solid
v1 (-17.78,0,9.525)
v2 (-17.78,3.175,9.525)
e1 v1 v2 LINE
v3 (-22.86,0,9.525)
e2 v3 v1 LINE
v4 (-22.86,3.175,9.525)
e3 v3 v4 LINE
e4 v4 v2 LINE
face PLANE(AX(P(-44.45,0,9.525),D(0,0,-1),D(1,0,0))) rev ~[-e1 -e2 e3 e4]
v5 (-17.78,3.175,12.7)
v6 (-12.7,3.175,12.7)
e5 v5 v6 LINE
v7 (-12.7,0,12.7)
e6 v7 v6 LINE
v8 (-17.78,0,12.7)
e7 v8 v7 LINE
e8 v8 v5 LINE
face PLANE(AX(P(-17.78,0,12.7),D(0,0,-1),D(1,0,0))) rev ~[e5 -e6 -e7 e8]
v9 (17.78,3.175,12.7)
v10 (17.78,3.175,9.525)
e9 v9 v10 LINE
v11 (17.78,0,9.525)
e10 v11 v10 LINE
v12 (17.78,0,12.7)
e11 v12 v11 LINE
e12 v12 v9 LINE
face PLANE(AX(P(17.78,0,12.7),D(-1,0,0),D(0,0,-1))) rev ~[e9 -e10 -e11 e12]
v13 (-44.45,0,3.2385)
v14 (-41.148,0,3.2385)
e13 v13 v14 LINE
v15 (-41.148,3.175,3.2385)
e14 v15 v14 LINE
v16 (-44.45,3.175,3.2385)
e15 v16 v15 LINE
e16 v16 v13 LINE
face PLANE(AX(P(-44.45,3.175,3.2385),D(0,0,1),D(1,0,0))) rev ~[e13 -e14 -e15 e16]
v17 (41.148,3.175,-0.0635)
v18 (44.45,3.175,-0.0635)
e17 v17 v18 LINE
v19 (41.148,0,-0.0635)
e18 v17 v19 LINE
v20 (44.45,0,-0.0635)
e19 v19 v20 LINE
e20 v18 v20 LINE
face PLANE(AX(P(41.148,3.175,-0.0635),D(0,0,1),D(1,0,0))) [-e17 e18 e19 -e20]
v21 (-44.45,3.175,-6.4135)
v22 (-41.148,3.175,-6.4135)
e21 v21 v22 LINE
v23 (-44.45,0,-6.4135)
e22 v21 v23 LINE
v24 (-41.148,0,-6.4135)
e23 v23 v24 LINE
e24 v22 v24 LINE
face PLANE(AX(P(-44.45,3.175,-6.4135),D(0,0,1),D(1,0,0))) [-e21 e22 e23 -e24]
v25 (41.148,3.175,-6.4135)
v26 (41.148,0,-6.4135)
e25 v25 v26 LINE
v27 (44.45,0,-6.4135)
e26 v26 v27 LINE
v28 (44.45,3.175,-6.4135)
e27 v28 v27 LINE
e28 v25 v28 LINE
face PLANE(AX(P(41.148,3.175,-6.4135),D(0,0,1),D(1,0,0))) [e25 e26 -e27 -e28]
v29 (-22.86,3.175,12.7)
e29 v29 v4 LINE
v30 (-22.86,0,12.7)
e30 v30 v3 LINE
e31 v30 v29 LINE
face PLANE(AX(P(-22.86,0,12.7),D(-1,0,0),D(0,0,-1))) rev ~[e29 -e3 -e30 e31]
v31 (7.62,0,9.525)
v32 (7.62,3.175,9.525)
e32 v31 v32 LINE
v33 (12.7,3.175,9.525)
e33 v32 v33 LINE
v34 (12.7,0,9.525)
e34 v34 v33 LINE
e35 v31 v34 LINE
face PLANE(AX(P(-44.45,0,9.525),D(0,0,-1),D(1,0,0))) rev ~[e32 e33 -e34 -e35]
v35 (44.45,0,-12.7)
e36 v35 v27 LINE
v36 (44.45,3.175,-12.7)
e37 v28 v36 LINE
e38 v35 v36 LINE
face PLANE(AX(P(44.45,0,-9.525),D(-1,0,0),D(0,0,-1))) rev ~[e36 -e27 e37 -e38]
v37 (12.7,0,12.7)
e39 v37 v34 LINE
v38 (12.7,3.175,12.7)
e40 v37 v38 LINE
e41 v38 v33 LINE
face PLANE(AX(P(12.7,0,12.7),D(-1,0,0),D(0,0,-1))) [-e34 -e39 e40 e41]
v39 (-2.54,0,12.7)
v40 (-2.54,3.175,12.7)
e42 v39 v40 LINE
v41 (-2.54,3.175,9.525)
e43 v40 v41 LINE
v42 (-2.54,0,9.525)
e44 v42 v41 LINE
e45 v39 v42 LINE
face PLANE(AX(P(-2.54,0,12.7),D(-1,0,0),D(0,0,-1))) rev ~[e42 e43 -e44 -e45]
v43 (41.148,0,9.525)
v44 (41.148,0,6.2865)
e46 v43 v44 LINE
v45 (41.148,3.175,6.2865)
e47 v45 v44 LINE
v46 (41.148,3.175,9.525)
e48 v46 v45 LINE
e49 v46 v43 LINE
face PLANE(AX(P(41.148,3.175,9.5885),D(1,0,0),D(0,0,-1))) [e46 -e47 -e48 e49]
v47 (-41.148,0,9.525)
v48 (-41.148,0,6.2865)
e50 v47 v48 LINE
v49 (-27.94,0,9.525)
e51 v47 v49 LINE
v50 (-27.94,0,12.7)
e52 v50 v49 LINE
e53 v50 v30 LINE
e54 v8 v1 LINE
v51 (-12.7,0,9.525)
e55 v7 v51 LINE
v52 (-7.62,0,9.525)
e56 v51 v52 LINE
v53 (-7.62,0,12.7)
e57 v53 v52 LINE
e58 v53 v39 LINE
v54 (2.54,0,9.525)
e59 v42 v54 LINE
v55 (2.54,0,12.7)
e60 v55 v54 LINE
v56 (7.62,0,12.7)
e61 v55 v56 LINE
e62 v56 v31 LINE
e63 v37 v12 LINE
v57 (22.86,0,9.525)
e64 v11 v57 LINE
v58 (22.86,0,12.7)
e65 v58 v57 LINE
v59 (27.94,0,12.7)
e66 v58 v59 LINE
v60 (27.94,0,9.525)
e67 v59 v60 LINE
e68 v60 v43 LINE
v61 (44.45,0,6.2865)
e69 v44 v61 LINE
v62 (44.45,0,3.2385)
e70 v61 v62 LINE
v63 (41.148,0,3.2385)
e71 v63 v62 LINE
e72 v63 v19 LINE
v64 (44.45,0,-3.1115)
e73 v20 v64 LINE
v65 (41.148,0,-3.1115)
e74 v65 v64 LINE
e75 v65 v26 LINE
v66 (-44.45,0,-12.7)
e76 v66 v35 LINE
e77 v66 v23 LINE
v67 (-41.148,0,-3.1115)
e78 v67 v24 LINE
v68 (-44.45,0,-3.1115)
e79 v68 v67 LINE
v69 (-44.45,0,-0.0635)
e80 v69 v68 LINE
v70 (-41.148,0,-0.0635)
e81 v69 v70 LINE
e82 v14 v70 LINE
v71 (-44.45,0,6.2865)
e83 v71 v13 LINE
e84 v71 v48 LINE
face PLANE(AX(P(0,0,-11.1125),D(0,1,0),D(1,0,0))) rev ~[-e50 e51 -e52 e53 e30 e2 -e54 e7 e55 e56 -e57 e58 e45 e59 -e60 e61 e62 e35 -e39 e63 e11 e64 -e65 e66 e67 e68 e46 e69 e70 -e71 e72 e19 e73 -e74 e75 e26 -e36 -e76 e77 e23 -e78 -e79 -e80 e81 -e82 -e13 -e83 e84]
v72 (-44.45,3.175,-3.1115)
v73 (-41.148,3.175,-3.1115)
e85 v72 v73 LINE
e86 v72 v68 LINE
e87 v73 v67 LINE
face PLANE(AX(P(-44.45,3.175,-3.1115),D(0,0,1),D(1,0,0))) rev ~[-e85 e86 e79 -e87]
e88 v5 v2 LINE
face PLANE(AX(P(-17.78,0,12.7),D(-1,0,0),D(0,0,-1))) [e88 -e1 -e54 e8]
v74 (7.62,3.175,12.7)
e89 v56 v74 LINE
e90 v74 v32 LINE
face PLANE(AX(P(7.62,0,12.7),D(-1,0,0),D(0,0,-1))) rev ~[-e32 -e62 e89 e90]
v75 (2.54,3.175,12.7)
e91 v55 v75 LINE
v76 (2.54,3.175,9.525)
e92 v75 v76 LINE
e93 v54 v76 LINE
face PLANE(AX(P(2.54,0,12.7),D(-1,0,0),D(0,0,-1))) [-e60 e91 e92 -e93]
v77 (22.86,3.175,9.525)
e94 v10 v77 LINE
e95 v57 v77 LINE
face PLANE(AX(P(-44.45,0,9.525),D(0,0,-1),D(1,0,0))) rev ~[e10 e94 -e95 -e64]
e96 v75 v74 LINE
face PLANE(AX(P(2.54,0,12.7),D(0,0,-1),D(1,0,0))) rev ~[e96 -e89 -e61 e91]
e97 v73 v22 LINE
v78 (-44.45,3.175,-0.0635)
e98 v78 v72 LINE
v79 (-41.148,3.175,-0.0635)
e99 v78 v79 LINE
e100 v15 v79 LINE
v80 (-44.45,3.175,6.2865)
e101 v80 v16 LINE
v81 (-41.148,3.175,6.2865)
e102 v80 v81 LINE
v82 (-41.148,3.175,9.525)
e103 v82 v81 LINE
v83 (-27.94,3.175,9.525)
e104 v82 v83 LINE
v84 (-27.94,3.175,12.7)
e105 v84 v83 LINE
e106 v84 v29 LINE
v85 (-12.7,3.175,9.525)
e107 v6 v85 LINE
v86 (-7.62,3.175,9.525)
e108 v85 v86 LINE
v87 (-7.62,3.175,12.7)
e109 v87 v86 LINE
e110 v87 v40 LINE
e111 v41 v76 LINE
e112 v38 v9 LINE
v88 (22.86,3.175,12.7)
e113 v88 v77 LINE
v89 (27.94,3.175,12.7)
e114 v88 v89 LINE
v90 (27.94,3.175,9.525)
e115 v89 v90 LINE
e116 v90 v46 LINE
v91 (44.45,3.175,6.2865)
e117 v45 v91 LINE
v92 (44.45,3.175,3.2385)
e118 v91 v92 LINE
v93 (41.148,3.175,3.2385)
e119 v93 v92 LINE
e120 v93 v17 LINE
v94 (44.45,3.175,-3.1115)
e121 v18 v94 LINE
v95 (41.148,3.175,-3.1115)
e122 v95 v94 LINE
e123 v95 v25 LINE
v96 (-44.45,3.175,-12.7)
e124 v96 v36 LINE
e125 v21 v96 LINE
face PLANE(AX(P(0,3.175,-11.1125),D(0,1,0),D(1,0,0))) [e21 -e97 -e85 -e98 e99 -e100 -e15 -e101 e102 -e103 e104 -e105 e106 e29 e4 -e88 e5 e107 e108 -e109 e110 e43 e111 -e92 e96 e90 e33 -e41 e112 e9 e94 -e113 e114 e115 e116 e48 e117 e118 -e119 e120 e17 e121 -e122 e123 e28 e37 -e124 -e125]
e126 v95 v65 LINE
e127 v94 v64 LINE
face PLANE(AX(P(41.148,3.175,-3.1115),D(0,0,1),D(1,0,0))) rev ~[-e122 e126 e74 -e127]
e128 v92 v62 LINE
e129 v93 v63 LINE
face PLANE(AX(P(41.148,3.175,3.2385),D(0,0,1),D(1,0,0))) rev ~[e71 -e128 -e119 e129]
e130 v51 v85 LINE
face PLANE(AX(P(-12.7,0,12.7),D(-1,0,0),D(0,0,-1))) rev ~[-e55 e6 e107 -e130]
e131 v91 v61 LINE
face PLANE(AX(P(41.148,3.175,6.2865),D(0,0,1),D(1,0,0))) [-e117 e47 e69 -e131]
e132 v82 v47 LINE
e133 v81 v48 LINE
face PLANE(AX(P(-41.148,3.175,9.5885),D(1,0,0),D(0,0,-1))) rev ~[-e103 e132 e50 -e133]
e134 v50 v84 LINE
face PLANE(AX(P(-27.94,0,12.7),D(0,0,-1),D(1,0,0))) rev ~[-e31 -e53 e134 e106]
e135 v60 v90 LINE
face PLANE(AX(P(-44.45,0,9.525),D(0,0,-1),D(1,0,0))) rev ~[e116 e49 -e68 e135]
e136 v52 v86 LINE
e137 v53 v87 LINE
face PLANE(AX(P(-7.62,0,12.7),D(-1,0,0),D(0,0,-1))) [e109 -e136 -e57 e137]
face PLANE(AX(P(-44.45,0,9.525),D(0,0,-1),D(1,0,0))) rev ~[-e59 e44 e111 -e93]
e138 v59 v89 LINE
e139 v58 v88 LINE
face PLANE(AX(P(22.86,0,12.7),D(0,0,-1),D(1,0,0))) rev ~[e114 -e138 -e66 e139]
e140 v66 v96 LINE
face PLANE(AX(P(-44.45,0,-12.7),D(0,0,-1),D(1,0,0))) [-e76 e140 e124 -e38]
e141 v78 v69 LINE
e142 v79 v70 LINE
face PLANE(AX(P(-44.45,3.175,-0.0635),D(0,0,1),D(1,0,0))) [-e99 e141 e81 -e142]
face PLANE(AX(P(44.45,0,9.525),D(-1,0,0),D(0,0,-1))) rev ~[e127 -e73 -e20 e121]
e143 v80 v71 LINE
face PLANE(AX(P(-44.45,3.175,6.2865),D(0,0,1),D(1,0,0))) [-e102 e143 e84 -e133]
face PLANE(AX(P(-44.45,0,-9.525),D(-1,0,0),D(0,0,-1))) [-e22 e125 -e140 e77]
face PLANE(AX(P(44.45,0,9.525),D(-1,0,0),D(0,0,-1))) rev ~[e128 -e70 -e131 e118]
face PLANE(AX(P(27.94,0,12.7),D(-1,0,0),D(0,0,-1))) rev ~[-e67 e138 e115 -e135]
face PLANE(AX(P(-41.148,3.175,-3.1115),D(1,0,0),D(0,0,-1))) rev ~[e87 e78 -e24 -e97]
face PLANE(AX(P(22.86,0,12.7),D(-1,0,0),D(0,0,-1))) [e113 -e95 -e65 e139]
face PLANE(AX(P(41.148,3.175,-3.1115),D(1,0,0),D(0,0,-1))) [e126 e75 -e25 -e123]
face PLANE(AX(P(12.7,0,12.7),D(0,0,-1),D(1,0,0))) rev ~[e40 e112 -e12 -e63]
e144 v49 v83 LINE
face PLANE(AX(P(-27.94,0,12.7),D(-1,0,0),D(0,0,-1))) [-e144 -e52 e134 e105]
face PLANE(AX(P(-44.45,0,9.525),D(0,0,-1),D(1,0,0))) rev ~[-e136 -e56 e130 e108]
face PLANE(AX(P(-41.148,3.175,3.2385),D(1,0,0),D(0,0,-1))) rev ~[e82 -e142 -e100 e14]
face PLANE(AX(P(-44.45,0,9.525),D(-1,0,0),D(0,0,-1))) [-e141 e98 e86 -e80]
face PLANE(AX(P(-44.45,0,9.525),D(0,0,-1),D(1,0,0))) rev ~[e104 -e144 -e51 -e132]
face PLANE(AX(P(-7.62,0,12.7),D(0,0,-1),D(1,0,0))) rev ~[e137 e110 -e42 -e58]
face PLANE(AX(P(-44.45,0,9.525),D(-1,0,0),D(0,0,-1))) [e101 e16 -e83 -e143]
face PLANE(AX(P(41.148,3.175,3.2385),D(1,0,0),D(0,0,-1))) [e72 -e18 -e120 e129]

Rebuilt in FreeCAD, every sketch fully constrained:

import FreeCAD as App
import Part
import Sketcher

V = App.Vector
Q = App.Units.Quantity

doc = App.newDocument("Part")
params = doc.addObject("Spreadsheet::Sheet", "Params")
for row, (alias, value) in enumerate([
    ("sketch1_width", "3.5 in"),
    ("sketch1_height", "0.75 in"),
    ("pad1_length", "0.125 in"),
    ("sketch2_width", "0.13 in"),
    ("sketch3_width", "0.2 in"),
    ("sketch3_width2", "3.5 in"),
    ("sketch3_height", "0.125 in"),
    ("pad2_length", "0.125 in"),
], start=1):
    params.set(f"A{row}", alias)
    params.set(f"B{row}", "=" + value)
    params.setAlias(f"B{row}", alias)

body = doc.addObject("PartDesign::Body", "Body")

# Sketch on XZ plane
sketch1 = body.newObject("Sketcher::SketchObject", "Sketch")
sketch1.AttachmentSupport = (doc.getObject("XZ_Plane"), [""])
sketch1.MapMode = "FlatFace"
sketch1.addGeometry([
    Part.LineSegment(V(-44, -10, 0), V(-44, 10, 0)),
    Part.LineSegment(V(-44, 10, 0), V(44, 10, 0)),
    Part.LineSegment(V(44, 10, 0), V(44, -10, 0)),
    Part.LineSegment(V(44, -10, 0), V(-44, -10, 0)),
], False)
sketch1.addConstraint([
    Sketcher.Constraint("Coincident", 0, 2, 1, 1),
    Sketcher.Constraint("Coincident", 1, 2, 2, 1),
    Sketcher.Constraint("Coincident", 2, 2, 3, 1),
    Sketcher.Constraint("Coincident", 3, 2, 0, 1),
    Sketcher.Constraint("Vertical", 0),
    Sketcher.Constraint("Horizontal", 1),
    Sketcher.Constraint("Vertical", 2),
    Sketcher.Constraint("Horizontal", 3),
    Sketcher.Constraint("Symmetric", 0, 2, 2, 2, -1, 1),
    Sketcher.Constraint("DistanceX", 1, 1, 1, 2, Q("3.5 in")),
    Sketcher.Constraint("DistanceY", 0, 1, 0, 2, Q("0.75 in")),
])
sketch1.setExpression("Constraints[9]", "Params.sketch1_width")
sketch1.setExpression("Constraints[10]", "Params.sketch1_height")
pad1 = body.newObject("PartDesign::Pad", "Pad")
pad1.Profile = sketch1
pad1.setExpression("Length", "Params.pad1_length")
pad1.Reversed = True

# Sketch on XZ plane
sketch2 = body.newObject("Sketcher::SketchObject", "Sketch001")
sketch2.AttachmentSupport = (doc.getObject("XZ_Plane"), [""])
sketch2.MapMode = "FlatFace"
sketch2.AttachmentOffset = App.Placement(V(0, 0, -0.125 * 25.4), App.Rotation())
sketch2.addGeometry([
    Part.LineSegment(V(-44.5, -6.4, 0), V(-44.5, -3.1, 0)),  # 0
    Part.LineSegment(V(-44.5, -3.1, 0), V(-41.1, -3.1, 0)),  # 1
    Part.LineSegment(V(-41.1, -3.1, 0), V(-41.1, -6.4, 0)),  # 2
    Part.LineSegment(V(-41.1, -6.4, 0), V(-44.5, -6.4, 0)),  # 3
    Part.LineSegment(V(-44.5, -0.1, 0), V(-44.5, 3.2, 0)),  # 4
    Part.LineSegment(V(-44.5, 3.2, 0), V(-41.1, 3.2, 0)),  # 5
    Part.LineSegment(V(-41.1, 3.2, 0), V(-41.1, -0.1, 0)),  # 6
    Part.LineSegment(V(-41.1, -0.1, 0), V(-44.5, -0.1, 0)),  # 7
    Part.LineSegment(V(-44.5, 6.3, 0), V(-44.5, 9.6, 0)),  # 8
    Part.LineSegment(V(-44.5, 9.6, 0), V(-41.1, 9.6, 0)),  # 9
    Part.LineSegment(V(-41.1, 9.6, 0), V(-41.1, 6.3, 0)),  # 10
    Part.LineSegment(V(-41.1, 6.3, 0), V(-44.5, 6.3, 0)),  # 11
    Part.LineSegment(V(41.1, 6.3, 0), V(41.1, 9.6, 0)),  # 12
    Part.LineSegment(V(41.1, 9.6, 0), V(44.5, 9.6, 0)),  # 13
    Part.LineSegment(V(44.5, 9.6, 0), V(44.5, 6.3, 0)),  # 14
    Part.LineSegment(V(44.5, 6.3, 0), V(41.1, 6.3, 0)),  # 15
    Part.LineSegment(V(41.1, -0.1, 0), V(41.1, 3.2, 0)),  # 16
    Part.LineSegment(V(41.1, 3.2, 0), V(44.5, 3.2, 0)),  # 17
    Part.LineSegment(V(44.5, 3.2, 0), V(44.5, -0.1, 0)),  # 18
    Part.LineSegment(V(44.5, -0.1, 0), V(41.1, -0.1, 0)),  # 19
    Part.LineSegment(V(41.1, -6.4, 0), V(41.1, -3.1, 0)),  # 20
    Part.LineSegment(V(41.1, -3.1, 0), V(44.5, -3.1, 0)),  # 21
    Part.LineSegment(V(44.5, -3.1, 0), V(44.5, -6.4, 0)),  # 22
    Part.LineSegment(V(44.5, -6.4, 0), V(41.1, -6.4, 0)),  # 23
], False)
sketch2.addConstraint([
    Sketcher.Constraint("Coincident", 0, 2, 1, 1),
    Sketcher.Constraint("Coincident", 1, 2, 2, 1),
    Sketcher.Constraint("Coincident", 2, 2, 3, 1),
    Sketcher.Constraint("Coincident", 3, 2, 0, 1),
    Sketcher.Constraint("Coincident", 4, 2, 5, 1),
    Sketcher.Constraint("Coincident", 5, 2, 6, 1),
    Sketcher.Constraint("Coincident", 6, 2, 7, 1),
    Sketcher.Constraint("Coincident", 7, 2, 4, 1),
    Sketcher.Constraint("Coincident", 8, 2, 9, 1),
    Sketcher.Constraint("Coincident", 9, 2, 10, 1),
    Sketcher.Constraint("Coincident", 10, 2, 11, 1),
    Sketcher.Constraint("Coincident", 11, 2, 8, 1),
    Sketcher.Constraint("Coincident", 12, 2, 13, 1),
    Sketcher.Constraint("Coincident", 13, 2, 14, 1),
    Sketcher.Constraint("Coincident", 14, 2, 15, 1),
    Sketcher.Constraint("Coincident", 15, 2, 12, 1),
    Sketcher.Constraint("Coincident", 16, 2, 17, 1),
    Sketcher.Constraint("Coincident", 17, 2, 18, 1),
    Sketcher.Constraint("Coincident", 18, 2, 19, 1),
    Sketcher.Constraint("Coincident", 19, 2, 16, 1),
    Sketcher.Constraint("Coincident", 20, 2, 21, 1),
    Sketcher.Constraint("Coincident", 21, 2, 22, 1),
    Sketcher.Constraint("Coincident", 22, 2, 23, 1),
    Sketcher.Constraint("Coincident", 23, 2, 20, 1),
    Sketcher.Constraint("Vertical", 0),
    Sketcher.Constraint("Horizontal", 1),
    Sketcher.Constraint("Vertical", 2),
    Sketcher.Constraint("Horizontal", 3),
    Sketcher.Constraint("Vertical", 4),
    Sketcher.Constraint("Horizontal", 5),
    Sketcher.Constraint("Vertical", 6),
    Sketcher.Constraint("Horizontal", 7),
    Sketcher.Constraint("Vertical", 8),
    Sketcher.Constraint("Horizontal", 9),
    Sketcher.Constraint("Vertical", 10),
    Sketcher.Constraint("Horizontal", 11),
    Sketcher.Constraint("Vertical", 12),
    Sketcher.Constraint("Horizontal", 13),
    Sketcher.Constraint("Vertical", 14),
    Sketcher.Constraint("Horizontal", 15),
    Sketcher.Constraint("Vertical", 16),
    Sketcher.Constraint("Horizontal", 17),
    Sketcher.Constraint("Vertical", 18),
    Sketcher.Constraint("Horizontal", 19),
    Sketcher.Constraint("Vertical", 20),
    Sketcher.Constraint("Horizontal", 21),
    Sketcher.Constraint("Vertical", 22),
    Sketcher.Constraint("Horizontal", 23),
    Sketcher.Constraint("Symmetric", 9, 2, 12, 2, -2),
    Sketcher.Constraint("Symmetric", 11, 2, 14, 2, -2),
    Sketcher.Constraint("Symmetric", 5, 2, 16, 2, -2),
    Sketcher.Constraint("Symmetric", 7, 2, 18, 2, -2),
    Sketcher.Constraint("Symmetric", 1, 2, 20, 2, -2),
    Sketcher.Constraint("Symmetric", 3, 2, 22, 2, -2),
    Sketcher.Constraint("Vertical", 3, 2, 4, 2),
    Sketcher.Constraint("Vertical", 2, 2, 5, 2),
    Sketcher.Constraint("Vertical", 7, 2, 8, 2),
    Sketcher.Constraint("Vertical", 6, 2, 9, 2),
    Sketcher.Constraint("Equal", 23, 0),
    Sketcher.Constraint("Equal", 2, 4),
    Sketcher.Constraint("Equal", 6, 8),
    Sketcher.Constraint("DistanceX", 1, 1, 1, 2, Q("0.13 in")),
    Sketcher.Constraint("DistanceY", 0, 2, 8, 2, Q("0.5 in")),
    Sketcher.Constraint("DistanceX", 0, 2, -1, 1, Q("1.75 in")),
    Sketcher.Constraint("DistanceY", 0, 2, 4, 2, Q("0.25 in")),
    Sketcher.Constraint("DistanceY", 0, 2, -1, 1, Q("0.1225 in")),
])
sketch2.setExpression("Constraints[61]", "Params.sketch2_width")
pocket1 = body.newObject("PartDesign::Pocket", "Pocket")
pocket1.Profile = sketch2
pocket1.Type = "ThroughAll"
pocket1.Reversed = True

# Sketch on XZ plane
sketch3 = body.newObject("Sketcher::SketchObject", "Sketch002")
sketch3.AttachmentSupport = (doc.getObject("XZ_Plane"), [""])
sketch3.MapMode = "FlatFace"
sketch3.addGeometry([
    Part.LineSegment(V(-27.9, 9.5, 0), V(-27.9, 12.7, 0)),  # 0
    Part.LineSegment(V(-27.9, 12.7, 0), V(-22.9, 12.7, 0)),  # 1
    Part.LineSegment(V(-22.9, 12.7, 0), V(-22.9, 9.5, 0)),  # 2
    Part.LineSegment(V(-22.9, 9.5, 0), V(-27.9, 9.5, 0)),  # 3
    Part.LineSegment(V(-17.8, 9.5, 0), V(-17.8, 12.7, 0)),  # 4
    Part.LineSegment(V(-17.8, 12.7, 0), V(-12.7, 12.7, 0)),  # 5
    Part.LineSegment(V(-12.7, 12.7, 0), V(-12.7, 9.5, 0)),  # 6
    Part.LineSegment(V(-12.7, 9.5, 0), V(-17.8, 9.5, 0)),  # 7
    Part.LineSegment(V(-44.5, -12.7, 0), V(-44.5, -9.5, 0)),  # 8
    Part.LineSegment(V(-44.5, -9.5, 0), V(44.5, -9.5, 0)),  # 9
    Part.LineSegment(V(44.5, -9.5, 0), V(44.5, -12.7, 0)),  # 10
    Part.LineSegment(V(44.5, -12.7, 0), V(-44.5, -12.7, 0)),  # 11
    Part.LineSegment(V(-7.6, 9.5, 0), V(-7.6, 12.7, 0)),  # 12
    Part.LineSegment(V(-7.6, 12.7, 0), V(-2.5, 12.7, 0)),  # 13
    Part.LineSegment(V(-2.5, 12.7, 0), V(-2.5, 9.5, 0)),  # 14
    Part.LineSegment(V(-2.5, 9.5, 0), V(-7.6, 9.5, 0)),  # 15
    Part.LineSegment(V(2.5, 9.5, 0), V(2.5, 12.7, 0)),  # 16
    Part.LineSegment(V(2.5, 12.7, 0), V(7.6, 12.7, 0)),  # 17
    Part.LineSegment(V(7.6, 12.7, 0), V(7.6, 9.5, 0)),  # 18
    Part.LineSegment(V(7.6, 9.5, 0), V(2.5, 9.5, 0)),  # 19
    Part.LineSegment(V(12.7, 9.5, 0), V(12.7, 12.7, 0)),  # 20
    Part.LineSegment(V(12.7, 12.7, 0), V(17.8, 12.7, 0)),  # 21
    Part.LineSegment(V(17.8, 12.7, 0), V(17.8, 9.5, 0)),  # 22
    Part.LineSegment(V(17.8, 9.5, 0), V(12.7, 9.5, 0)),  # 23
    Part.LineSegment(V(22.9, 9.5, 0), V(22.9, 12.7, 0)),  # 24
    Part.LineSegment(V(22.9, 12.7, 0), V(27.9, 12.7, 0)),  # 25
    Part.LineSegment(V(27.9, 12.7, 0), V(27.9, 9.5, 0)),  # 26
    Part.LineSegment(V(27.9, 9.5, 0), V(22.9, 9.5, 0)),  # 27
], False)
sketch3.addConstraint([
    Sketcher.Constraint("Coincident", 0, 2, 1, 1),
    Sketcher.Constraint("Coincident", 1, 2, 2, 1),
    Sketcher.Constraint("Coincident", 2, 2, 3, 1),
    Sketcher.Constraint("Coincident", 3, 2, 0, 1),
    Sketcher.Constraint("Coincident", 4, 2, 5, 1),
    Sketcher.Constraint("Coincident", 5, 2, 6, 1),
    Sketcher.Constraint("Coincident", 6, 2, 7, 1),
    Sketcher.Constraint("Coincident", 7, 2, 4, 1),
    Sketcher.Constraint("Coincident", 8, 2, 9, 1),
    Sketcher.Constraint("Coincident", 9, 2, 10, 1),
    Sketcher.Constraint("Coincident", 10, 2, 11, 1),
    Sketcher.Constraint("Coincident", 11, 2, 8, 1),
    Sketcher.Constraint("Coincident", 12, 2, 13, 1),
    Sketcher.Constraint("Coincident", 13, 2, 14, 1),
    Sketcher.Constraint("Coincident", 14, 2, 15, 1),
    Sketcher.Constraint("Coincident", 15, 2, 12, 1),
    Sketcher.Constraint("Coincident", 16, 2, 17, 1),
    Sketcher.Constraint("Coincident", 17, 2, 18, 1),
    Sketcher.Constraint("Coincident", 18, 2, 19, 1),
    Sketcher.Constraint("Coincident", 19, 2, 16, 1),
    Sketcher.Constraint("Coincident", 20, 2, 21, 1),
    Sketcher.Constraint("Coincident", 21, 2, 22, 1),
    Sketcher.Constraint("Coincident", 22, 2, 23, 1),
    Sketcher.Constraint("Coincident", 23, 2, 20, 1),
    Sketcher.Constraint("Coincident", 24, 2, 25, 1),
    Sketcher.Constraint("Coincident", 25, 2, 26, 1),
    Sketcher.Constraint("Coincident", 26, 2, 27, 1),
    Sketcher.Constraint("Coincident", 27, 2, 24, 1),
    Sketcher.Constraint("Vertical", 0),
    Sketcher.Constraint("Horizontal", 1),
    Sketcher.Constraint("Vertical", 2),
    Sketcher.Constraint("Horizontal", 3),
    Sketcher.Constraint("Vertical", 4),
    Sketcher.Constraint("Horizontal", 5),
    Sketcher.Constraint("Vertical", 6),
    Sketcher.Constraint("Horizontal", 7),
    Sketcher.Constraint("Vertical", 8),
    Sketcher.Constraint("Horizontal", 9),
    Sketcher.Constraint("Vertical", 10),
    Sketcher.Constraint("Horizontal", 11),
    Sketcher.Constraint("Vertical", 12),
    Sketcher.Constraint("Horizontal", 13),
    Sketcher.Constraint("Vertical", 14),
    Sketcher.Constraint("Horizontal", 15),
    Sketcher.Constraint("Vertical", 16),
    Sketcher.Constraint("Horizontal", 17),
    Sketcher.Constraint("Vertical", 18),
    Sketcher.Constraint("Horizontal", 19),
    Sketcher.Constraint("Vertical", 20),
    Sketcher.Constraint("Horizontal", 21),
    Sketcher.Constraint("Vertical", 22),
    Sketcher.Constraint("Horizontal", 23),
    Sketcher.Constraint("Vertical", 24),
    Sketcher.Constraint("Horizontal", 25),
    Sketcher.Constraint("Vertical", 26),
    Sketcher.Constraint("Horizontal", 27),
    Sketcher.Constraint("Symmetric", 13, 2, 16, 2, -2),
    Sketcher.Constraint("Symmetric", 15, 2, 18, 2, -2),
    Sketcher.Constraint("Symmetric", 5, 2, 20, 2, -2),
    Sketcher.Constraint("Symmetric", 7, 2, 22, 2, -2),
    Sketcher.Constraint("Symmetric", 1, 2, 24, 2, -2),
    Sketcher.Constraint("Symmetric", 3, 2, 26, 2, -2),
    Sketcher.Constraint("Horizontal", 1, 2, 4, 2),
    Sketcher.Constraint("Horizontal", 3, 2, 6, 2),
    Sketcher.Constraint("Horizontal", 5, 2, 12, 2),
    Sketcher.Constraint("Horizontal", 7, 2, 14, 2),
    Sketcher.Constraint("Equal", 3, 5),
    Sketcher.Constraint("Equal", 7, 13),
    Sketcher.Constraint("Equal", 6, 8),
    Sketcher.Constraint("DistanceX", 1, 1, 1, 2, Q("0.2 in")),
    Sketcher.Constraint("DistanceX", 9, 1, 9, 2, Q("3.5 in")),
    Sketcher.Constraint("DistanceY", 10, 2, 5, 2, Q("1 in")),
    Sketcher.Constraint("DistanceX", 0, 2, -1, 1, Q("1.1 in")),
    Sketcher.Constraint("DistanceY", -1, 1, 0, 2, Q("0.5 in")),
    Sketcher.Constraint("DistanceX", 4, 2, -1, 1, Q("0.7 in")),
    Sketcher.Constraint("DistanceX", 12, 2, -1, 1, Q("0.3 in")),
    Sketcher.Constraint("DistanceY", 0, 1, 0, 2, Q("0.125 in")),
    Sketcher.Constraint("DistanceX", 8, 2, -1, 1, Q("1.75 in")),
])
sketch3.setExpression("Constraints[69]", "Params.sketch3_width")
sketch3.setExpression("Constraints[70]", "Params.sketch3_width2")
sketch3.setExpression("Constraints[76]", "Params.sketch3_height")
pad2 = body.newObject("PartDesign::Pad", "Pad001")
pad2.Profile = sketch3
pad2.setExpression("Length", "Params.pad2_length")
pad2.Reversed = True

doc.recompute()
